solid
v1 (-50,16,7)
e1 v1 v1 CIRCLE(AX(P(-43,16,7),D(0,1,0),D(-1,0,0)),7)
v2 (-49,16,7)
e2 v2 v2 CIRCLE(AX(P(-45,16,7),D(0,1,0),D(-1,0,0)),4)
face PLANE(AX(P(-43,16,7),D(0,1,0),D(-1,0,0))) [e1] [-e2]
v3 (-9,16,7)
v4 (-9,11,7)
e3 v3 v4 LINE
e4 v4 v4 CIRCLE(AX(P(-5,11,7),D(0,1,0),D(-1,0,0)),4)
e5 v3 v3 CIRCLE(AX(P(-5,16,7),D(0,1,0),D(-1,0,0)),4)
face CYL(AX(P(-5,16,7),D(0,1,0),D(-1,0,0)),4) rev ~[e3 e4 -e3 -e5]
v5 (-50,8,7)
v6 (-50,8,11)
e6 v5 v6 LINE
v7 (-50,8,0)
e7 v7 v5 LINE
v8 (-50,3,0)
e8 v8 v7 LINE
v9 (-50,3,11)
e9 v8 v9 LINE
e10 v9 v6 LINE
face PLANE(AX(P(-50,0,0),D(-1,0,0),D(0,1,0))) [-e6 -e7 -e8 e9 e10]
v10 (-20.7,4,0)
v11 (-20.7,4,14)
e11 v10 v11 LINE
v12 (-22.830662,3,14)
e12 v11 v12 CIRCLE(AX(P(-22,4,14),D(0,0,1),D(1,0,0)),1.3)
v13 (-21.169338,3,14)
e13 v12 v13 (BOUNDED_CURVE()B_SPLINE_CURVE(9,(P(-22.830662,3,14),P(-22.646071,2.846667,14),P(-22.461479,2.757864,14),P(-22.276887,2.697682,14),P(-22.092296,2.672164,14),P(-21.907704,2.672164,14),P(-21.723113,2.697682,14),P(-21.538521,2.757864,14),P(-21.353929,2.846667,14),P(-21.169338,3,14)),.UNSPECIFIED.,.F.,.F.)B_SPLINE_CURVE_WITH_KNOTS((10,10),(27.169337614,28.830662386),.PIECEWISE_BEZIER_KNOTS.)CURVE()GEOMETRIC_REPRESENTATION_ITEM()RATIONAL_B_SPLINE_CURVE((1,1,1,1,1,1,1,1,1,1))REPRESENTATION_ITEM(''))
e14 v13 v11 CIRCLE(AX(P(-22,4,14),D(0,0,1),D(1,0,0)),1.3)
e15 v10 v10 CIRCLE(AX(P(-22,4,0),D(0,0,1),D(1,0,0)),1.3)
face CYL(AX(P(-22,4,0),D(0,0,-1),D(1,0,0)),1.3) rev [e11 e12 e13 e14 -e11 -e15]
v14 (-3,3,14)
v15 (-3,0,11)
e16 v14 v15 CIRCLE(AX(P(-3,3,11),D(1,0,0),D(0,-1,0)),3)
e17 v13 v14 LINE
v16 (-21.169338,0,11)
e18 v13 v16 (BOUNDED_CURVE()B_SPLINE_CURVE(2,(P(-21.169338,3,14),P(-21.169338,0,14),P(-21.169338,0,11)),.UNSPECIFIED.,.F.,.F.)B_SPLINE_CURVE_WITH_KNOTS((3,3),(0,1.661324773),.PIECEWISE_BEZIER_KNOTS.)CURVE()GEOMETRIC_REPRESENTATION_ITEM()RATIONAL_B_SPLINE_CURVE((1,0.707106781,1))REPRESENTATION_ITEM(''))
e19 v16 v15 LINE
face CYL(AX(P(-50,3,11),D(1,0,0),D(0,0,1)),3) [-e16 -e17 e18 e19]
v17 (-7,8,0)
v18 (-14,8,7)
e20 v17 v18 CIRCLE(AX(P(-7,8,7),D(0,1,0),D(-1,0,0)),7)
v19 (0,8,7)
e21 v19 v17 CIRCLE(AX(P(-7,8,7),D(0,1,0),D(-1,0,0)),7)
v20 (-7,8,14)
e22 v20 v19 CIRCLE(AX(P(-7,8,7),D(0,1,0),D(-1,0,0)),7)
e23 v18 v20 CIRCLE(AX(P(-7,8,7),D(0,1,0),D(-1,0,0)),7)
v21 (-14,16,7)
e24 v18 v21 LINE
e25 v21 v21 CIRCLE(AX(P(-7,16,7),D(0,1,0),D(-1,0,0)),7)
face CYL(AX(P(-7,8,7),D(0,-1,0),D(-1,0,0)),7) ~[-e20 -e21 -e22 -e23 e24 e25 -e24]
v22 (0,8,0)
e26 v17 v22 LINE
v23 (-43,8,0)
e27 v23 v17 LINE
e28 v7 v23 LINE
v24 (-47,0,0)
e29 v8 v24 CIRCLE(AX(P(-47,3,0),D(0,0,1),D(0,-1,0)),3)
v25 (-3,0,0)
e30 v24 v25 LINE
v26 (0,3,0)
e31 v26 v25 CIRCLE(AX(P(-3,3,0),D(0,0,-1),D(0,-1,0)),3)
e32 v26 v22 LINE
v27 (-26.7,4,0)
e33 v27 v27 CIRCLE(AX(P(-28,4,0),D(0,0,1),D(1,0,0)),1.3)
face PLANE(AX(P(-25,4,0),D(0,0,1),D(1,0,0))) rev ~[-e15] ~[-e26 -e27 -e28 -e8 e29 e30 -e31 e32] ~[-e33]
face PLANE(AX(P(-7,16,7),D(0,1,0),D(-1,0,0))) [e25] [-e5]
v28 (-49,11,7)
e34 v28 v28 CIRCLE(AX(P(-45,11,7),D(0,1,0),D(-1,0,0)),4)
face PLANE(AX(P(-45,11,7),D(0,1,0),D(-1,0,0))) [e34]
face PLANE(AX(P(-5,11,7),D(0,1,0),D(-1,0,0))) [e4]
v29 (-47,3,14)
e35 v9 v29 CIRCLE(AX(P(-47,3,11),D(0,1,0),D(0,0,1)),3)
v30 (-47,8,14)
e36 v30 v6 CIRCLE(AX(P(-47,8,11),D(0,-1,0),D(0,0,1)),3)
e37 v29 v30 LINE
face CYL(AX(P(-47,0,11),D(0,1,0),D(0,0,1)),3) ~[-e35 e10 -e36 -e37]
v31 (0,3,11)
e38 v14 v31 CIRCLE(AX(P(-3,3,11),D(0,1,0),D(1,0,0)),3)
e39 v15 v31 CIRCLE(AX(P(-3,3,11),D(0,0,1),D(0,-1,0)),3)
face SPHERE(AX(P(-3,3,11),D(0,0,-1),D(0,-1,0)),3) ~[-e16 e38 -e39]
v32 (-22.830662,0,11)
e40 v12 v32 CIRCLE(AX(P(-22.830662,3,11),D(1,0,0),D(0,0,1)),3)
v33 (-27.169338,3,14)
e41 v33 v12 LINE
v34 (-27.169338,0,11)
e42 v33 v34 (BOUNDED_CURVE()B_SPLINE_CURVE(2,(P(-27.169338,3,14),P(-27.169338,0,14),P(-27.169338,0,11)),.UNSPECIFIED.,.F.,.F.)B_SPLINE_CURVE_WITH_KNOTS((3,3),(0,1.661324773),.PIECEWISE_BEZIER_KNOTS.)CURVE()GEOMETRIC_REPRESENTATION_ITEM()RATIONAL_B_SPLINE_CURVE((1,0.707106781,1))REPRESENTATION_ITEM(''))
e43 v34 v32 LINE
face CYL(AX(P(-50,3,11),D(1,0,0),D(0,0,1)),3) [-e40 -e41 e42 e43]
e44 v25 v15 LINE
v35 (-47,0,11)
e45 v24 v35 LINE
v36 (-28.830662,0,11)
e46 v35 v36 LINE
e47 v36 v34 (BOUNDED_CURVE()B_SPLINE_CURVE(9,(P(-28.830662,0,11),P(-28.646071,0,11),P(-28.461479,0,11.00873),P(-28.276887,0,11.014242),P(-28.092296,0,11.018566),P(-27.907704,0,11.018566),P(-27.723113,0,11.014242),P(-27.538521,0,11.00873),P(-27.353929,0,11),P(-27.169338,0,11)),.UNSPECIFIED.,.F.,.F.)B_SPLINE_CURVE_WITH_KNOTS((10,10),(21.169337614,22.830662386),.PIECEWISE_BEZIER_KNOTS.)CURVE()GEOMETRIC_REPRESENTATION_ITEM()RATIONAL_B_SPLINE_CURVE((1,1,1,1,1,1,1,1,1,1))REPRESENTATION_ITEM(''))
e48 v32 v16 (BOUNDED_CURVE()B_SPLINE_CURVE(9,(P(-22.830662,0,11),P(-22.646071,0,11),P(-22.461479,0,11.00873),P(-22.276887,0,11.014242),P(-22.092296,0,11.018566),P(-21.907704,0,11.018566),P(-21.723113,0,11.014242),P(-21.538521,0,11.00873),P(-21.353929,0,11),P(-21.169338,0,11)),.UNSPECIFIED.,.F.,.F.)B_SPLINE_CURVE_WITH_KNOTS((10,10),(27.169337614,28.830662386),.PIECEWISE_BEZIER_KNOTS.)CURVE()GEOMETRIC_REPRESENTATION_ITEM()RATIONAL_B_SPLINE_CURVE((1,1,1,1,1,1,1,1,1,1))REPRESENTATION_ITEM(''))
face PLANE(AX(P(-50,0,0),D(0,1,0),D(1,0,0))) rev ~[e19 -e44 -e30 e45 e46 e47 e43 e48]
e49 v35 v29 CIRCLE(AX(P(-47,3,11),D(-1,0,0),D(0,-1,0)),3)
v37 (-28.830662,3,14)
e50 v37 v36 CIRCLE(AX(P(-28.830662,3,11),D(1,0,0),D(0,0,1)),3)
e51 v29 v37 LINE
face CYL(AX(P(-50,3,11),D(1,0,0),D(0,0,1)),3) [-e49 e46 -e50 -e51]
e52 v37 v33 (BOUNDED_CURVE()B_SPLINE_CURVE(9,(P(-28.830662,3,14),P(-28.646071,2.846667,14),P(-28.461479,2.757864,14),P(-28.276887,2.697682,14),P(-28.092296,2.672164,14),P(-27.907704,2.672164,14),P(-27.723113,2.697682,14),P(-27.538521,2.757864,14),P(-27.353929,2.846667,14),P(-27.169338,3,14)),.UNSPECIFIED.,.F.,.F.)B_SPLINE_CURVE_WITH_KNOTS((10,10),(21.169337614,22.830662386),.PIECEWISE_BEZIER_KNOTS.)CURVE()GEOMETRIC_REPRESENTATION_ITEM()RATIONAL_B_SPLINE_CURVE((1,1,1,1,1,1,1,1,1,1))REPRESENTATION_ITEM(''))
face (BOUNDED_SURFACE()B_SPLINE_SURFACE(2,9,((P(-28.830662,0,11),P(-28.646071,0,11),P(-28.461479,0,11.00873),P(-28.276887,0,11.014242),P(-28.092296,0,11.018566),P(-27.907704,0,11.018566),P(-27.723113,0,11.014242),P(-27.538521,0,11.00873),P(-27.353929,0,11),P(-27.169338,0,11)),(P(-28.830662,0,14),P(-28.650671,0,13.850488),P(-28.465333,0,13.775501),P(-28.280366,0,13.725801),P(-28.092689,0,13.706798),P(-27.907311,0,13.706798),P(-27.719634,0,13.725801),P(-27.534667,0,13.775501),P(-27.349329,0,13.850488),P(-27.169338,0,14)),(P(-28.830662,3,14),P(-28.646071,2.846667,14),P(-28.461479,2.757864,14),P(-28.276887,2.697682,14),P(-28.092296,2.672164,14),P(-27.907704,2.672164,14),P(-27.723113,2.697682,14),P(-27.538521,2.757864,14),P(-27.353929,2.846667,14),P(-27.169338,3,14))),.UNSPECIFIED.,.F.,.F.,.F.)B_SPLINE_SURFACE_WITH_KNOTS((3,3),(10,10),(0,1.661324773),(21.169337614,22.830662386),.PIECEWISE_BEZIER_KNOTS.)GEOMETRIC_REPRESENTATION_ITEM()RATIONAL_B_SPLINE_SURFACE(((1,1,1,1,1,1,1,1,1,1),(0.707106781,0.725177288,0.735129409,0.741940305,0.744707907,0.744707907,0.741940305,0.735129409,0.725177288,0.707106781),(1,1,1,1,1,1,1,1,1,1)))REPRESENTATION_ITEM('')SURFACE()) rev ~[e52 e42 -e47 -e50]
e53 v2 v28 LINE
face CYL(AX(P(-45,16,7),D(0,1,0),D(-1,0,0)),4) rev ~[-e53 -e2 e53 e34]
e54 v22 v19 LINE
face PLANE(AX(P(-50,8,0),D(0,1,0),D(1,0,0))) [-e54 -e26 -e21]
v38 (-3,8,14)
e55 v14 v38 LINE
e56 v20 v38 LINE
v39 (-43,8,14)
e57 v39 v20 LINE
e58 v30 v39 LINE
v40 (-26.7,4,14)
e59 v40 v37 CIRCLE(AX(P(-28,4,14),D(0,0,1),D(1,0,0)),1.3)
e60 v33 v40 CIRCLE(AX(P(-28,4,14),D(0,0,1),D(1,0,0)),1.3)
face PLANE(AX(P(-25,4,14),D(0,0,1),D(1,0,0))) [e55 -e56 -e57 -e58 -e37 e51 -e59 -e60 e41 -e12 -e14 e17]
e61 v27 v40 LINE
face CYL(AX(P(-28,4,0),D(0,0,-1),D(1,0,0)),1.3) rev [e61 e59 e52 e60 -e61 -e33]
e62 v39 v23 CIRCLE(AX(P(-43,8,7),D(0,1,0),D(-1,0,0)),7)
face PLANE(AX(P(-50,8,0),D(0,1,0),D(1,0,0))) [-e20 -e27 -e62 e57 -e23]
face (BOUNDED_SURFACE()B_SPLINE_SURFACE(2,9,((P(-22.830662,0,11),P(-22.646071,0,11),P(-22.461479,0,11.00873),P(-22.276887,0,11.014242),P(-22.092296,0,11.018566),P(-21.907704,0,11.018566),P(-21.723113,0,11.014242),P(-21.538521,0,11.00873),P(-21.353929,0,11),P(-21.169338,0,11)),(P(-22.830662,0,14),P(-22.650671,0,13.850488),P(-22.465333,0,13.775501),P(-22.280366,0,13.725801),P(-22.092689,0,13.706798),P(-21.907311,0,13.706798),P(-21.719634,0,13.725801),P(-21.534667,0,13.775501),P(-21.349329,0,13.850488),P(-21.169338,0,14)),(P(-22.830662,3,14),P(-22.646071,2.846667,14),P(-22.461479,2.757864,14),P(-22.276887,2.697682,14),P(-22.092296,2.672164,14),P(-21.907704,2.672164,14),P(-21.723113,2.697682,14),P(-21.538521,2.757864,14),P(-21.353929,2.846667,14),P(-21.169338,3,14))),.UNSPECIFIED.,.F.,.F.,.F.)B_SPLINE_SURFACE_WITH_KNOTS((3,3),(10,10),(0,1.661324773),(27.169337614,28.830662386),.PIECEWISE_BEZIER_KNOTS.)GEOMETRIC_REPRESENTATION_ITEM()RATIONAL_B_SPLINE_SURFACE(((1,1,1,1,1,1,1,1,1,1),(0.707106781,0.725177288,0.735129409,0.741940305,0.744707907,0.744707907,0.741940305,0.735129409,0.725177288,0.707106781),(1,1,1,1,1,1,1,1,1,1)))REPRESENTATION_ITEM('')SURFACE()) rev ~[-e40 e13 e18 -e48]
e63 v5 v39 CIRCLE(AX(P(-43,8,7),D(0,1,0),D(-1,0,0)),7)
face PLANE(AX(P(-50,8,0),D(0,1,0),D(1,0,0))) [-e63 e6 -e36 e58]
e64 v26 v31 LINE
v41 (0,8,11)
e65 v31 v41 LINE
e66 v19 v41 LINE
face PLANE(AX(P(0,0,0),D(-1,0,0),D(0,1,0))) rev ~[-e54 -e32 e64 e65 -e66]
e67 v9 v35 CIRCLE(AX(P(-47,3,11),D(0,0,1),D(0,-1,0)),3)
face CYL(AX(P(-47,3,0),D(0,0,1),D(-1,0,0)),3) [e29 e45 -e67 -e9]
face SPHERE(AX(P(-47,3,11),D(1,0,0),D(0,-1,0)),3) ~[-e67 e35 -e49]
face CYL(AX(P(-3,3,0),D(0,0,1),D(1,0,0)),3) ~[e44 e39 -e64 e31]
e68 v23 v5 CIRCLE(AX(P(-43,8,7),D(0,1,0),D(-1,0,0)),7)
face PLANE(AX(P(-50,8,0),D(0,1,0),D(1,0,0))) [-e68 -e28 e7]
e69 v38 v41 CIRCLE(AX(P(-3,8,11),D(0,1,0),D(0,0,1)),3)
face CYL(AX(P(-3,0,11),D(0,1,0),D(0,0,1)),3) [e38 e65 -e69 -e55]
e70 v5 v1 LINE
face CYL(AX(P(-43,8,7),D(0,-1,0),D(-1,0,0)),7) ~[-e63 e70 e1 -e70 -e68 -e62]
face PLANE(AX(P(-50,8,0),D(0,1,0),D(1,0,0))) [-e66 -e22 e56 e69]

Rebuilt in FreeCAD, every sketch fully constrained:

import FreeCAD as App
import Part
import Sketcher
from FreeCAD import Vector


def edges_at(feature, points):
    """Names of the edges that pass closest to the given points."""
    edges = feature.Shape.Edges
    near = lambda p: min(range(len(edges)), key=lambda i: edges[i].distToShape(Part.Vertex(*p))[0])
    return sorted({f"Edge{near(p) + 1}" for p in points})

doc = App.newDocument("Part")
params = doc.addObject("Spreadsheet::Sheet", "Params")
for row, (alias, value) in enumerate([
    ("sketch1_diameter", "2.6 mm"),
    ("sketch1_width", "50 mm"),
    ("sketch1_height", "8 mm"),
    ("pad1_length", "14 mm"),
    ("sketch2_diameter", "14 mm"),
    ("pad2_length", "8 mm"),
    ("sketch3_diameter", "8 mm"),
    ("pocket1_length", "5 mm"),
    ("fillet_radius", "3 mm"),
], start=1):
    params.set(f"A{row}", alias)
    params.set(f"B{row}", "=" + value)
    params.setAlias(f"B{row}", alias)

body = doc.addObject("PartDesign::Body", "Body")

# Sketch on XY plane
sketch1 = doc.addObject("Sketcher::SketchObject", "Sketch")
body.addObject(sketch1)
sketch1.AttachmentSupport = (doc.XY_Plane, [""])
sketch1.MapMode = "FlatFace"
sketch1.addGeometry(Part.LineSegment(Vector(-50, 8, 0), Vector(-50, 0, 0)), False)
sketch1.addGeometry(Part.LineSegment(Vector(-50, 0, 0), Vector(0, 0, 0)), False)
sketch1.addGeometry(Part.LineSegment(Vector(0, 0, 0), Vector(0, 8, 0)), False)
sketch1.addGeometry(Part.LineSegment(Vector(0, 8, 0), Vector(-50, 8, 0)), False)
sketch1.addGeometry(Part.Circle(Vector(-28, 4, 0), Vector(0, 0, 1), 1.3), False)
sketch1.addGeometry(Part.Circle(Vector(-22, 4, 0), Vector(0, 0, 1), 1.3), False)
sketch1.addConstraint(Sketcher.Constraint("Coincident", 0, 2, 1, 1))
sketch1.addConstraint(Sketcher.Constraint("Coincident", 1, 2, 2, 1))
sketch1.addConstraint(Sketcher.Constraint("Coincident", 2, 2, 3, 1))
sketch1.addConstraint(Sketcher.Constraint("Coincident", 3, 2, 0, 1))
sketch1.addConstraint(Sketcher.Constraint("Vertical", 0))
sketch1.addConstraint(Sketcher.Constraint("Horizontal", 1))
sketch1.addConstraint(Sketcher.Constraint("Vertical", 2))
sketch1.addConstraint(Sketcher.Constraint("Horizontal", 3))
sketch1.addConstraint(Sketcher.Constraint("Coincident", 1, 2, -1, 1))
sketch1.addConstraint(Sketcher.Constraint("Equal", 4, 5))
sketch1.addConstraint(Sketcher.Constraint("Horizontal", 4, 3, 5, 3))
sketch1.addConstraint(Sketcher.Constraint("Diameter", 4, 2.6))
sketch1.addConstraint(Sketcher.Constraint("DistanceX", 1, 1, 1, 2, 50.0))
sketch1.addConstraint(Sketcher.Constraint("DistanceY", 0, 2, 0, 1, 8.0))
sketch1.addConstraint(Sketcher.Constraint("DistanceX", 4, 3, -1, 1, 28.0))
sketch1.addConstraint(Sketcher.Constraint("DistanceY", -1, 1, 4, 3, 4.0))
sketch1.addConstraint(Sketcher.Constraint("DistanceX", 5, 3, -1, 1, 22.0))
sketch1.setExpression("Constraints[11]", "Params.sketch1_diameter")
sketch1.setExpression("Constraints[12]", "Params.sketch1_width")
sketch1.setExpression("Constraints[13]", "Params.sketch1_height")
pad1 = doc.addObject("PartDesign::Pad", "Pad")
body.addObject(pad1)
pad1.Profile = sketch1
pad1.setExpression("Length", "Params.pad1_length")

# Sketch on XZ plane
sketch2 = doc.addObject("Sketcher::SketchObject", "Sketch001")
body.addObject(sketch2)
sketch2.AttachmentSupport = (doc.XZ_Plane, [""])
sketch2.MapMode = "FlatFace"
sketch2.AttachmentOffset = App.Placement(Vector(0, 0, -8), App.Rotation())
sketch2.addGeometry(Part.Circle(Vector(-7, 7, 0), Vector(0, 0, 1), 7), False)
sketch2.addGeometry(Part.Circle(Vector(-43, 7, 0), Vector(0, 0, 1), 7), False)
sketch2.addConstraint(Sketcher.Constraint("Equal", 0, 1))
sketch2.addConstraint(Sketcher.Constraint("Horizontal", 0, 3, 1, 3))
sketch2.addConstraint(Sketcher.Constraint("Diameter", 0, 14.0))
sketch2.addConstraint(Sketcher.Constraint("DistanceX", 0, 3, -1, 1, 7.0))
sketch2.addConstraint(Sketcher.Constraint("DistanceY", -1, 1, 0, 3, 7.0))
sketch2.addConstraint(Sketcher.Constraint("DistanceX", 1, 3, -1, 1, 43.0))
sketch2.setExpression("Constraints[2]", "Params.sketch2_diameter")
pad2 = doc.addObject("PartDesign::Pad", "Pad001")
body.addObject(pad2)
pad2.Profile = sketch2
pad2.setExpression("Length", "Params.pad2_length")
pad2.Reversed = True

# Sketch on XZ plane
sketch3 = doc.addObject("Sketcher::SketchObject", "Sketch002")
body.addObject(sketch3)
sketch3.AttachmentSupport = (doc.XZ_Plane, [""])
sketch3.MapMode = "FlatFace"
sketch3.AttachmentOffset = App.Placement(Vector(0, 0, -16), App.Rotation())
sketch3.addGeometry(Part.Circle(Vector(-5, 7, 0), Vector(0, 0, 1), 4), False)
sketch3.addGeometry(Part.Circle(Vector(-45, 7, 0), Vector(0, 0, 1), 4), False)
sketch3.addConstraint(Sketcher.Constraint("Equal", 0, 1))
sketch3.addConstraint(Sketcher.Constraint("Horizontal", 0, 3, 1, 3))
sketch3.addConstraint(Sketcher.Constraint("Diameter", 0, 8.0))
sketch3.addConstraint(Sketcher.Constraint("DistanceX", 0, 3, -1, 1, 5.0))
sketch3.addConstraint(Sketcher.Constraint("DistanceY", -1, 1, 0, 3, 7.0))
sketch3.addConstraint(Sketcher.Constraint("DistanceX", 1, 3, -1, 1, 45.0))
sketch3.setExpression("Constraints[2]", "Params.sketch3_diameter")
pocket1 = doc.addObject("PartDesign::Pocket", "Pocket")
body.addObject(pocket1)
pocket1.Profile = sketch3
pocket1.setExpression("Length", "Params.pocket1_length")
pocket1.Reversed = True
doc.recompute()

fillet = doc.addObject("PartDesign::Fillet", "Fillet")
body.addObject(fillet)
fillet.Base = (pocket1, edges_at(pocket1, [
    (0, 0, 7),
    (-25, 0, 14),
    (-50, 0, 7),
    (0, 4, 14),
    (-50, 4, 14),
]))
fillet.setExpression("Radius", "Params.fillet_radius")

doc.recompute()
